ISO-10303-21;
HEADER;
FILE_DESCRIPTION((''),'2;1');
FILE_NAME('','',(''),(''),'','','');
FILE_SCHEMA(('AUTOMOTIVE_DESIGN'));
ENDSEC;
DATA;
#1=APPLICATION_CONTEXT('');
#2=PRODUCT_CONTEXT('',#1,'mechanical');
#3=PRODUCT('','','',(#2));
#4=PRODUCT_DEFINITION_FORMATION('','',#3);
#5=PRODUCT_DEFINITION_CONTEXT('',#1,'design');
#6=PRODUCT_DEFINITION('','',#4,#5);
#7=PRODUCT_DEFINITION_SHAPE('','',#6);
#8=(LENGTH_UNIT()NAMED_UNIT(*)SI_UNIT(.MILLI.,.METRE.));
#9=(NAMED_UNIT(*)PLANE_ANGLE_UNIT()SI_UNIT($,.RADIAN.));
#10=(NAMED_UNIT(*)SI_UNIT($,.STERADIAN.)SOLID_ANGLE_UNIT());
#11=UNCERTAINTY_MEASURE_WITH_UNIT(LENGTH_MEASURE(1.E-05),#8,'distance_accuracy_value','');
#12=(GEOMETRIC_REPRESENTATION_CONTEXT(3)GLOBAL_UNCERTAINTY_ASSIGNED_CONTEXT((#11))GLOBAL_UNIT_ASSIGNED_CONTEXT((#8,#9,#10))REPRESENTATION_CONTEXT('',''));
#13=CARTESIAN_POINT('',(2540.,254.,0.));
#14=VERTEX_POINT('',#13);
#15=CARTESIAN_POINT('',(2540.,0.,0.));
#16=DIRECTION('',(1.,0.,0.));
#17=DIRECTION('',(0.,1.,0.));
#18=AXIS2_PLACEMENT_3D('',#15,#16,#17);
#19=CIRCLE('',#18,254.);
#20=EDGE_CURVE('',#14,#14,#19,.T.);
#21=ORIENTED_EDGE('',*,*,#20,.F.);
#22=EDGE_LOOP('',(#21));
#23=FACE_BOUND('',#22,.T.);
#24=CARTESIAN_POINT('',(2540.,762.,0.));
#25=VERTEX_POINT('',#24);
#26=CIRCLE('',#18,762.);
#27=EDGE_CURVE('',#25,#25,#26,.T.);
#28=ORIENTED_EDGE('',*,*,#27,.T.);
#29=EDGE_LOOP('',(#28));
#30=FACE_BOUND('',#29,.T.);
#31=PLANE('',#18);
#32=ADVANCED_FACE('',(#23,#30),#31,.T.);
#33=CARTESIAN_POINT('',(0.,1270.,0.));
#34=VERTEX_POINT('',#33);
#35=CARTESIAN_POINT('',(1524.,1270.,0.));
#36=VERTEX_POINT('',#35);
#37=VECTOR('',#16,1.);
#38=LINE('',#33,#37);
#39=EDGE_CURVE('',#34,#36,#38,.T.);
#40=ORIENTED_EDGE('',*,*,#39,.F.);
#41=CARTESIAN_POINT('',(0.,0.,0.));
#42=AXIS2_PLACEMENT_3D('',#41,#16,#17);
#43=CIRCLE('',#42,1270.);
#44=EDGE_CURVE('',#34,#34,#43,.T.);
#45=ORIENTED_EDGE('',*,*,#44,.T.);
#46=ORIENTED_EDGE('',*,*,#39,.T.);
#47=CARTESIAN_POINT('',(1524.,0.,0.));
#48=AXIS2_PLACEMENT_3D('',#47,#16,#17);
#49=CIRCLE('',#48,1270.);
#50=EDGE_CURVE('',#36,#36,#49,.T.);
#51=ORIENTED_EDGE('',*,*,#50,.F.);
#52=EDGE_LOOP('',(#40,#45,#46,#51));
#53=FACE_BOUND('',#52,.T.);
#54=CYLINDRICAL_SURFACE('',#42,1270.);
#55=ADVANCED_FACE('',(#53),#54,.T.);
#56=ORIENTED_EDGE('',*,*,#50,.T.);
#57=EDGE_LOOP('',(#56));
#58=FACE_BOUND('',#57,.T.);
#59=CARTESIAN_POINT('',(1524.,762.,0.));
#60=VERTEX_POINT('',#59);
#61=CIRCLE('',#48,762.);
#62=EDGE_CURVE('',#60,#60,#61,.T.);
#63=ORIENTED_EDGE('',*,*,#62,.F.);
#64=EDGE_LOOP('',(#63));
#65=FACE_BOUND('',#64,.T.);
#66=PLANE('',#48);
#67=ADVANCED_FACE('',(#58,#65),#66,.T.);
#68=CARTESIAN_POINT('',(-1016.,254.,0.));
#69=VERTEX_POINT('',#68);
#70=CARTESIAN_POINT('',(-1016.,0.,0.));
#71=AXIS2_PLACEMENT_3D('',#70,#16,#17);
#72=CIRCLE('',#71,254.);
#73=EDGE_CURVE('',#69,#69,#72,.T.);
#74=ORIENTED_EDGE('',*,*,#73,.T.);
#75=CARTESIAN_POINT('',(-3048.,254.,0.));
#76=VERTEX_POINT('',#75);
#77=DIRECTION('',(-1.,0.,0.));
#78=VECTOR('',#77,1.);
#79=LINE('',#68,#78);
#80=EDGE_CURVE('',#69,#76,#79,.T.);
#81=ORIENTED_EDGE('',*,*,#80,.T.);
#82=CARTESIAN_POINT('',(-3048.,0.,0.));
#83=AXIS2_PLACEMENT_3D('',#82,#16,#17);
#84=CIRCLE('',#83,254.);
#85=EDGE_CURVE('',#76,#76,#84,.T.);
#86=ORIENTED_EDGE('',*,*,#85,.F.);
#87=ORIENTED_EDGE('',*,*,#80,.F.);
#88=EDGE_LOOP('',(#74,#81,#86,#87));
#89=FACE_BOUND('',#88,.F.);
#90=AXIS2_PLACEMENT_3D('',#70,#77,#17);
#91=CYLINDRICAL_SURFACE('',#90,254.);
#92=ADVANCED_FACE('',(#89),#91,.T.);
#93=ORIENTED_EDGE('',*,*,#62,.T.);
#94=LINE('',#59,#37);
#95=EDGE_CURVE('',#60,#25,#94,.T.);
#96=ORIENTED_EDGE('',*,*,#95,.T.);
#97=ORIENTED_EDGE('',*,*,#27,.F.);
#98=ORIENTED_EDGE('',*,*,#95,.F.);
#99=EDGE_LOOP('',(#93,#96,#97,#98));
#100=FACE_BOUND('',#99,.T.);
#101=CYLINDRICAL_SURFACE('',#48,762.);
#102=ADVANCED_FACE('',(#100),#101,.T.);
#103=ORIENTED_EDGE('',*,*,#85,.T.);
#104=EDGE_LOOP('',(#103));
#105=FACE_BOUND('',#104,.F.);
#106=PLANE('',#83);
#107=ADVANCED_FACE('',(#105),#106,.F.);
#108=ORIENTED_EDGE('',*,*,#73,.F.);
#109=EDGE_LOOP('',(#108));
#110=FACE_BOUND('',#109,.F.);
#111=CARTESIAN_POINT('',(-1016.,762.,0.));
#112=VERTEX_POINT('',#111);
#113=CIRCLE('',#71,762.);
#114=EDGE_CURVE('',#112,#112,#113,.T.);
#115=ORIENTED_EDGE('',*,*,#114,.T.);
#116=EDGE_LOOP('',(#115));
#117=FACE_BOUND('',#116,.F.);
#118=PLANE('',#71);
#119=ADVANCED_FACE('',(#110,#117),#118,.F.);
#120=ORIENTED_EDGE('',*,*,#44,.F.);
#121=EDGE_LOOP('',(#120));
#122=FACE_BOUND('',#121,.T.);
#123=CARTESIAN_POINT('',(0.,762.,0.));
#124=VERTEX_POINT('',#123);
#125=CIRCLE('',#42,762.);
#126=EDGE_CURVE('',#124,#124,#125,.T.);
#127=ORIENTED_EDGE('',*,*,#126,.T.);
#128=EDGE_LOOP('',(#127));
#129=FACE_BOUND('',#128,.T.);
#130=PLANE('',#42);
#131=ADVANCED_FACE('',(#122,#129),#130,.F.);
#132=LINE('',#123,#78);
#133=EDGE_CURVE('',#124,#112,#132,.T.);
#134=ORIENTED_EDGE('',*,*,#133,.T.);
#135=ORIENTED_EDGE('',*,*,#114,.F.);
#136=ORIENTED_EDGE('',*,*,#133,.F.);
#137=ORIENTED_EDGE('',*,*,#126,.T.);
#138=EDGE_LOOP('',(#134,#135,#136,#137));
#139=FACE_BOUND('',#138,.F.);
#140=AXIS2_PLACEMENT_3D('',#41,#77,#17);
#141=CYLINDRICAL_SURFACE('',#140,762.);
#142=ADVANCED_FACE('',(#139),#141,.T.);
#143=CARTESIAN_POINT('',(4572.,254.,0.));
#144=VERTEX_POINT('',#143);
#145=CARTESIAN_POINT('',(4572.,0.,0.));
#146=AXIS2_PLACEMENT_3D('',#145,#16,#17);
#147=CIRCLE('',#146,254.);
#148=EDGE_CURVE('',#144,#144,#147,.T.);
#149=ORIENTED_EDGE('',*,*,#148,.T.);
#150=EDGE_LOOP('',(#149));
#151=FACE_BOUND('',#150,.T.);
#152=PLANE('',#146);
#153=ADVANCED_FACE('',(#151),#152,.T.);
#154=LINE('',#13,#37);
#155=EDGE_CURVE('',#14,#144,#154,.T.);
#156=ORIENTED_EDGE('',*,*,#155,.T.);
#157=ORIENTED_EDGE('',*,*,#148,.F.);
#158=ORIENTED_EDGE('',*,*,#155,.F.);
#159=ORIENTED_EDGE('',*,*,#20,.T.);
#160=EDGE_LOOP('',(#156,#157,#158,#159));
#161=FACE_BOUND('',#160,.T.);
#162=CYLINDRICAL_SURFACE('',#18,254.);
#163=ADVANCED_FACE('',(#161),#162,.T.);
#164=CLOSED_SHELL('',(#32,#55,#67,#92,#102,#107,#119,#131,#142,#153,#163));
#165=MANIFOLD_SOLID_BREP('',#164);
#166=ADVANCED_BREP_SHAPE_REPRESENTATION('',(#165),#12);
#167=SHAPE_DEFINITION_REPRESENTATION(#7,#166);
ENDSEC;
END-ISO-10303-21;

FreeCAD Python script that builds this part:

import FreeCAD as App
import Part
import Sketcher
Q = App.Units.Quantity

doc = App.newDocument("Part")
params = doc.addObject("Spreadsheet::Sheet", "Params")
for row, (alias, value) in enumerate([
    ("sketch1_width", "80 in"),
    ("sketch1_width2", "40 in"),
    ("sketch1_width3", "60 in"),
    ("sketch1_height", "10 in"),
    ("revolution_angle", "360 deg"),
], start=1):
    params.set(f"A{row}", alias)
    params.set(f"B{row}", "=" + value)
    params.setAlias(f"B{row}", alias)

body = doc.addObject("PartDesign::Body", "Body")

# Sketch on XY plane
sketch1 = doc.addObject("Sketcher::SketchObject", "Sketch")
body.addObject(sketch1)
sketch1.AttachmentSupport = (doc.XY_Plane, [""])
sketch1.MapMode = "FlatFace"
sketch1.addGeometry(Part.LineSegment(App.Vector(4572, 0, 0), App.Vector(4572, 254, 0)), False)
sketch1.addGeometry(Part.LineSegment(App.Vector(4572, 254, 0), App.Vector(2540, 254, 0)), False)
sketch1.addGeometry(Part.LineSegment(App.Vector(2540, 254, 0), App.Vector(2540, 762, 0)), False)
sketch1.addGeometry(Part.LineSegment(App.Vector(2540, 762, 0), App.Vector(1524, 762, 0)), False)
sketch1.addGeometry(Part.LineSegment(App.Vector(1524, 762, 0), App.Vector(1524, 1270, 0)), False)
sketch1.addGeometry(Part.LineSegment(App.Vector(1524, 1270, 0), App.Vector(0, 1270, 0)), False)
sketch1.addGeometry(Part.LineSegment(App.Vector(0, 1270, 0), App.Vector(0, 762, 0)), False)
sketch1.addGeometry(Part.LineSegment(App.Vector(0, 762, 0), App.Vector(-1016, 762, 0)), False)
sketch1.addGeometry(Part.LineSegment(App.Vector(-1016, 762, 0), App.Vector(-1016, 254, 0)), False)
sketch1.addGeometry(Part.LineSegment(App.Vector(-1016, 254, 0), App.Vector(-3048, 254, 0)), False)
sketch1.addGeometry(Part.LineSegment(App.Vector(-3048, 254, 0), App.Vector(-3048, 0, 0)), False)
sketch1.addGeometry(Part.LineSegment(App.Vector(-3048, 0, 0), App.Vector(4572, 0, 0)), False)
sketch1.addConstraint(Sketcher.Constraint("Coincident", 0, 2, 1, 1))
sketch1.addConstraint(Sketcher.Constraint("Coincident", 1, 2, 2, 1))
sketch1.addConstraint(Sketcher.Constraint("Coincident", 2, 2, 3, 1))
sketch1.addConstraint(Sketcher.Constraint("Coincident", 3, 2, 4, 1))
sketch1.addConstraint(Sketcher.Constraint("Coincident", 4, 2, 5, 1))
sketch1.addConstraint(Sketcher.Constraint("Coincident", 5, 2, 6, 1))
sketch1.addConstraint(Sketcher.Constraint("Coincident", 6, 2, 7, 1))
sketch1.addConstraint(Sketcher.Constraint("Coincident", 7, 2, 8, 1))
sketch1.addConstraint(Sketcher.Constraint("Coincident", 8, 2, 9, 1))
sketch1.addConstraint(Sketcher.Constraint("Coincident", 9, 2, 10, 1))
sketch1.addConstraint(Sketcher.Constraint("Coincident", 10, 2, 11, 1))
sketch1.addConstraint(Sketcher.Constraint("Coincident", 11, 2, 0, 1))
sketch1.addConstraint(Sketcher.Constraint("Vertical", 0))
sketch1.addConstraint(Sketcher.Constraint("Horizontal", 1))
sketch1.addConstraint(Sketcher.Constraint("Vertical", 2))
sketch1.addConstraint(Sketcher.Constraint("Horizontal", 3))
sketch1.addConstraint(Sketcher.Constraint("Vertical", 4))
sketch1.addConstraint(Sketcher.Constraint("Horizontal", 5))
sketch1.addConstraint(Sketcher.Constraint("Vertical", 6))
sketch1.addConstraint(Sketcher.Constraint("Horizontal", 7))
sketch1.addConstraint(Sketcher.Constraint("Vertical", 8))
sketch1.addConstraint(Sketcher.Constraint("Horizontal", 9))
sketch1.addConstraint(Sketcher.Constraint("Vertical", 10))
sketch1.addConstraint(Sketcher.Constraint("Horizontal", 11))
sketch1.addConstraint(Sketcher.Constraint("PointOnObject", 5, 2, -2))
sketch1.addConstraint(Sketcher.Constraint("PointOnObject", 10, 2, -1))
sketch1.addConstraint(Sketcher.Constraint("Horizontal", 3, 2, 6, 2))
sketch1.addConstraint(Sketcher.Constraint("Horizontal", 1, 2, 8, 2))
sketch1.addConstraint(Sketcher.Constraint("Equal", 3, 7))
sketch1.addConstraint(Sketcher.Constraint("Equal", 1, 9))
sketch1.addConstraint(Sketcher.Constraint("Equal", 2, 4))
sketch1.addConstraint(Sketcher.Constraint("DistanceX", 1, 2, 1, 1, Q("80 in")))
sketch1.addConstraint(Sketcher.Constraint("DistanceX", 3, 2, 3, 1, Q("40 in")))
sketch1.addConstraint(Sketcher.Constraint("DistanceX", 5, 2, 5, 1, Q("60 in")))
sketch1.addConstraint(Sketcher.Constraint("DistanceY", 0, 1, 0, 2, Q("10 in")))
sketch1.addConstraint(Sketcher.Constraint("DistanceY", -1, 1, 2, 2, Q("30 in")))
sketch1.setExpression("Constraints[31]", "Params.sketch1_width")
sketch1.setExpression("Constraints[32]", "Params.sketch1_width2")
sketch1.setExpression("Constraints[33]", "Params.sketch1_width3")
sketch1.setExpression("Constraints[34]", "Params.sketch1_height")
revolution = doc.addObject("PartDesign::Revolution", "Revolution")
body.addObject(revolution)
revolution.Profile = sketch1
revolution.ReferenceAxis = (sketch1, ["H_Axis"])
revolution.setExpression("Angle", "Params.revolution_angle")

doc.recompute()
